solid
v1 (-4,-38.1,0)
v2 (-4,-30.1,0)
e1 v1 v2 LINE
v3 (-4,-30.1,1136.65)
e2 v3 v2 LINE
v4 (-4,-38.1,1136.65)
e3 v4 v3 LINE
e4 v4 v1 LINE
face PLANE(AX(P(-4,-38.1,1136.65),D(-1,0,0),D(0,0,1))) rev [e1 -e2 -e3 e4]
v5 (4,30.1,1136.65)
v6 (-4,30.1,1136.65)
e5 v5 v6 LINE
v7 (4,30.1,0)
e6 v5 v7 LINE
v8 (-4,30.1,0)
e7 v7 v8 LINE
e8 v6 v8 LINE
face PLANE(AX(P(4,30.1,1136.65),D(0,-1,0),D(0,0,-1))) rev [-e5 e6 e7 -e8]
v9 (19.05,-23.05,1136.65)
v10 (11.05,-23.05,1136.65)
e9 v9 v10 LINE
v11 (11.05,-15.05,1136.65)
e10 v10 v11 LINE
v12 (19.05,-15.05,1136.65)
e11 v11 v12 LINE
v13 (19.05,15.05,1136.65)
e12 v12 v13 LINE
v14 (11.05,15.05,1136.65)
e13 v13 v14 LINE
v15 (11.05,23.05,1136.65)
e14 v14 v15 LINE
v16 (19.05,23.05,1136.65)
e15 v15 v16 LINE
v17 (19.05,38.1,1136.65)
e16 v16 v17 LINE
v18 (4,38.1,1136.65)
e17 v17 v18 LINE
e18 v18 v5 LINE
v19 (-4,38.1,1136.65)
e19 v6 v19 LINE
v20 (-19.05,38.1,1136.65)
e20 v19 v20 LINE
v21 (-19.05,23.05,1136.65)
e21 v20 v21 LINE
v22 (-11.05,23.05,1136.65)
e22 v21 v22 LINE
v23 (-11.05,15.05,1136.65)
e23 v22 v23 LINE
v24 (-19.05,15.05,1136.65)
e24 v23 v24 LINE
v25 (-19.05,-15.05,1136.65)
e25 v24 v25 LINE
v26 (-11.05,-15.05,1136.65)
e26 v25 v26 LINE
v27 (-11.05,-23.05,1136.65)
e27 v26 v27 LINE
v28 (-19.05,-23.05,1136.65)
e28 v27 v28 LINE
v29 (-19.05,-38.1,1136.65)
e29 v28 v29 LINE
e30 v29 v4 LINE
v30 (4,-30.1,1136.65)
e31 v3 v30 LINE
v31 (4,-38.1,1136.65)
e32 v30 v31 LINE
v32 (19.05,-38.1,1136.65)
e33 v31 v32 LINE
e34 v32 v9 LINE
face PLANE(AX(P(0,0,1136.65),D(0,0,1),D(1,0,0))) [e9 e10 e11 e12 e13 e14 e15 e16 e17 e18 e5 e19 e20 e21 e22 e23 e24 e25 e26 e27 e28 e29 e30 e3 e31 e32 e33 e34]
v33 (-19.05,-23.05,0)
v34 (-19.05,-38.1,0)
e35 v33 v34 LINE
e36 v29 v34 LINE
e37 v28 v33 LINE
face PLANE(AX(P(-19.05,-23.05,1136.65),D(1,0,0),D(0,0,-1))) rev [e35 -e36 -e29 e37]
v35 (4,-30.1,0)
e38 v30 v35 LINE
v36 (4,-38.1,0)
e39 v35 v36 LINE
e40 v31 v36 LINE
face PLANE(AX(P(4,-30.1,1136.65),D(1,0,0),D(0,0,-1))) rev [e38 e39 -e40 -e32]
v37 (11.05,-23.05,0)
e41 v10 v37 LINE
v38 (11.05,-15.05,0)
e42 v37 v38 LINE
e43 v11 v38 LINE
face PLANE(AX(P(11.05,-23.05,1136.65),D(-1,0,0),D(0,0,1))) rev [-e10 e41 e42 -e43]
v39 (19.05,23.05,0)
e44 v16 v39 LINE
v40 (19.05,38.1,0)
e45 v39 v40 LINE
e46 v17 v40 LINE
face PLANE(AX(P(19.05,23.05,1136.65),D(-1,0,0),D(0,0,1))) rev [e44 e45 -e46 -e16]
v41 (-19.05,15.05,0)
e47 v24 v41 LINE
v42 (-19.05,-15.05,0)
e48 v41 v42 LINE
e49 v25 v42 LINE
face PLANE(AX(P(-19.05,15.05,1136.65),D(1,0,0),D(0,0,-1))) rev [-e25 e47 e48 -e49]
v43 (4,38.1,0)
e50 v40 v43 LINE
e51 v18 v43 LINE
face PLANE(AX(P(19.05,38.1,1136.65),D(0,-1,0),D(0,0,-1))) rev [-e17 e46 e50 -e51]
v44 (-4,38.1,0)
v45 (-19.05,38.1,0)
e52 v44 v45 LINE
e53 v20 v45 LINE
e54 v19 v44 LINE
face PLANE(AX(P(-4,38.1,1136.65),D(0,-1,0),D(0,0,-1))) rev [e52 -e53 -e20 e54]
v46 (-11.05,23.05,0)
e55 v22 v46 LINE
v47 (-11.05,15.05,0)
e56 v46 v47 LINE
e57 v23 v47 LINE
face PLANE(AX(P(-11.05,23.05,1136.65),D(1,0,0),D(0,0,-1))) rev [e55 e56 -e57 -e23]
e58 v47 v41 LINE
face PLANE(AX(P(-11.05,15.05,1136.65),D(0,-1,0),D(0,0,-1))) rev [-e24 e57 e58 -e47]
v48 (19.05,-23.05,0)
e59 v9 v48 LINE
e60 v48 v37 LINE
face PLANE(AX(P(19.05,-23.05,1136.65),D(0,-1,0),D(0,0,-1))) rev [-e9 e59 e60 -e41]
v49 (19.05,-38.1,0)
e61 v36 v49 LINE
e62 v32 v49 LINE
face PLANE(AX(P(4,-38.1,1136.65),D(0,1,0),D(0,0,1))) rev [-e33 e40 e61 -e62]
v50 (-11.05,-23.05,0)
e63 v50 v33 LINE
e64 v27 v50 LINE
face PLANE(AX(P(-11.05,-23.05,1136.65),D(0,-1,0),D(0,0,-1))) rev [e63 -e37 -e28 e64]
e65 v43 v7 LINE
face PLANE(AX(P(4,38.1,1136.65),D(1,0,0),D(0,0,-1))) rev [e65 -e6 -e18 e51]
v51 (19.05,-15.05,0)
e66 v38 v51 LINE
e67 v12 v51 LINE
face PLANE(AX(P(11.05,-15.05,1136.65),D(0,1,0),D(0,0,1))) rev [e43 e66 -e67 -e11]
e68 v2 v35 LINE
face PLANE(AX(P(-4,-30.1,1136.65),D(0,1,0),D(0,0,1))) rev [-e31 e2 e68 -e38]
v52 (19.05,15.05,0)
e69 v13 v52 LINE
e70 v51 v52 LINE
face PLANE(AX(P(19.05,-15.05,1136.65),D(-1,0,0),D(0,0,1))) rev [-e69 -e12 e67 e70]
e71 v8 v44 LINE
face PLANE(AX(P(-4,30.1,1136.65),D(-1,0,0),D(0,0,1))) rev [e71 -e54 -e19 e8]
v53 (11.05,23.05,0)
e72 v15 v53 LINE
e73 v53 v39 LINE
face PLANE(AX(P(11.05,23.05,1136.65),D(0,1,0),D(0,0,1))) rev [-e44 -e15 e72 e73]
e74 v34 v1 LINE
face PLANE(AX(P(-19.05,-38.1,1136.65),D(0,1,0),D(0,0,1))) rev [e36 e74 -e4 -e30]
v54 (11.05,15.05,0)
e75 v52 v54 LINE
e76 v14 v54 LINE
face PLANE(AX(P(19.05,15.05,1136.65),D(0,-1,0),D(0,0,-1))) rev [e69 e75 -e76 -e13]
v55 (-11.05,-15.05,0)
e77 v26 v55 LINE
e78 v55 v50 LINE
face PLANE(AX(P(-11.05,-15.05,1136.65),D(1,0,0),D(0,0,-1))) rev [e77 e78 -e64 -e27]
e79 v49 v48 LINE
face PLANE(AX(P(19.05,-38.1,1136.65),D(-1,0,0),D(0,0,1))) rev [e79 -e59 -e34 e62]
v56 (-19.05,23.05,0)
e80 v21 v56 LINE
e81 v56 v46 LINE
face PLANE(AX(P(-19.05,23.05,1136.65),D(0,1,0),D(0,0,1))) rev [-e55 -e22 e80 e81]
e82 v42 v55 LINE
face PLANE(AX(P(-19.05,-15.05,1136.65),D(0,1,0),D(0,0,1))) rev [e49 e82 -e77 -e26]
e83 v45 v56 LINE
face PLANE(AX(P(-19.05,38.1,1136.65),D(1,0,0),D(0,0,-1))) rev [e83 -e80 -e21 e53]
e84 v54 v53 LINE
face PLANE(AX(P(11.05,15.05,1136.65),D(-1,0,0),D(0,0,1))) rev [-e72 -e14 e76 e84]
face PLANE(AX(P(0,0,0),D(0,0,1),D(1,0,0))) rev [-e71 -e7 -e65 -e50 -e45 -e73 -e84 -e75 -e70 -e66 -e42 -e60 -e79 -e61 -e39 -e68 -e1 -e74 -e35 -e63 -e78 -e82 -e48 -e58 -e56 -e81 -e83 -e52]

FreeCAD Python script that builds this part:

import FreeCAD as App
import Part
import Sketcher

V = App.Vector


def add_polygon(sketch, points):
    """Adds a closed chain of lines whose ends are joined by coincident constraints."""
    first, n = sketch.GeometryCount, len(points)
    for a, b in zip(points, points[1:] + points[:1]):
        sketch.addGeometry(Part.LineSegment(App.Vector(*a, 0), App.Vector(*b, 0)), False)
    for i in range(n):
        sketch.addConstraint(Sketcher.Constraint("Coincident", first + i, 2, first + (i + 1) % n, 1))

doc = App.newDocument("Part")
body = doc.addObject("PartDesign::Body", "Body")

# Sketch on XY plane
sketch1 = body.newObject("Sketcher::SketchObject", "Sketch")
sketch1.AttachmentSupport = (doc.getObject("XY_Plane"), [""])
sketch1.MapMode = "FlatFace"
add_polygon(sketch1, [(-19, -38), (-4, -38), (-4, -30), (4, -30), (4, -38), (19, -38), (19, -23), (11, -23), (11, -15), (19, -15), (19, 15), (11, 15), (11, 23), (19, 23), (19, 38), (4, 38), (4, 30), (-4, 30), (-4, 38), (-19, 38), (-19, 23), (-11, 23), (-11, 15), (-19, 15), (-19, -15), (-11, -15), (-11, -23), (-19, -23)])  # lines 0-27
sketch1.addConstraint([
    Sketcher.Constraint("Horizontal", 0),
    Sketcher.Constraint("Vertical", 1),
    Sketcher.Constraint("Horizontal", 2),
    Sketcher.Constraint("Vertical", 3),
    Sketcher.Constraint("Horizontal", 4),
    Sketcher.Constraint("Vertical", 5),
    Sketcher.Constraint("Horizontal", 6),
    Sketcher.Constraint("Vertical", 7),
    Sketcher.Constraint("Horizontal", 8),
    Sketcher.Constraint("Vertical", 9),
    Sketcher.Constraint("Horizontal", 10),
    Sketcher.Constraint("Vertical", 11),
    Sketcher.Constraint("Horizontal", 12),
    Sketcher.Constraint("Vertical", 13),
    Sketcher.Constraint("Horizontal", 14),
    Sketcher.Constraint("Vertical", 15),
    Sketcher.Constraint("Horizontal", 16),
    Sketcher.Constraint("Vertical", 17),
    Sketcher.Constraint("Horizontal", 18),
    Sketcher.Constraint("Vertical", 19),
    Sketcher.Constraint("Horizontal", 20),
    Sketcher.Constraint("Vertical", 21),
    Sketcher.Constraint("Horizontal", 22),
    Sketcher.Constraint("Vertical", 23),
    Sketcher.Constraint("Horizontal", 24),
    Sketcher.Constraint("Vertical", 25),
    Sketcher.Constraint("Horizontal", 26),
    Sketcher.Constraint("Vertical", 27),
    Sketcher.Constraint("Symmetric", 0, 2, 14, 2, -1, 1),
    Sketcher.Constraint("Symmetric", 2, 2, 16, 2, -1, 1),
    Sketcher.Constraint("Symmetric", 4, 2, 18, 2, -1, 1),
    Sketcher.Constraint("Symmetric", 6, 2, 20, 2, -1, 1),
    Sketcher.Constraint("Symmetric", 8, 2, 22, 2, -1, 1),
    Sketcher.Constraint("Symmetric", 10, 2, 24, 2, -1, 1),
    Sketcher.Constraint("Symmetric", 12, 2, 26, 2, -1, 1),
    Sketcher.Constraint("Symmetric", 0, 2, 3, 2, -2),
    Sketcher.Constraint("Symmetric", 12, 2, 19, 2, -2),
    Sketcher.Constraint("Symmetric", 10, 2, 21, 2, -2),
    Sketcher.Constraint("Vertical", 5, 2, 8, 2),
    Sketcher.Constraint("Equal", 2, 6),
    Sketcher.Constraint("Equal", 26, 1),
    Sketcher.Constraint("Equal", 18, 5),
    Sketcher.Constraint("Equal", 3, 7),
    Sketcher.Constraint("DistanceX", 2, 1, 2, 2, 8.0),
    Sketcher.Constraint("DistanceY", 9, 1, 9, 2, 30.1),
    Sketcher.Constraint("DistanceX", 0, 1, 0, 2, 15.05),
])
pad1 = body.newObject("PartDesign::Pad", "Pad")
pad1.Profile = sketch1
pad1.Length = 1136.65

doc.recompute()
